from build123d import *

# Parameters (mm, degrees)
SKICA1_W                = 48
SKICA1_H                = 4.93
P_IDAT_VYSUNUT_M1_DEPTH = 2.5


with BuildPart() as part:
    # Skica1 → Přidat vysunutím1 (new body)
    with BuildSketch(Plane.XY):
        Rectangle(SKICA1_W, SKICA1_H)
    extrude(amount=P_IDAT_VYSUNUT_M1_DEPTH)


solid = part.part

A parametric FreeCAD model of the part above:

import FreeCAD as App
import Part
import Sketcher

V = App.Vector

doc = App.newDocument("Part")
body = doc.addObject("PartDesign::Body", "Body")

# Sketch on XY plane
sketch1 = body.newObject("Sketcher::SketchObject", "Sketch")
sketch1.AttachmentSupport = (doc.getObject("XY_Plane"), [""])
sketch1.MapMode = "FlatFace"
sketch1.addGeometry([
    Part.LineSegment(V(-24, 2.5, 0), V(-24, -2.5, 0)),
    Part.LineSegment(V(-24, -2.5, 0), V(24, -2.5, 0)),
    Part.LineSegment(V(24, -2.5, 0), V(24, 2.5, 0)),
    Part.LineSegment(V(24, 2.5, 0), V(-24, 2.5, 0)),
], False)
sketch1.addConstraint([
    Sketcher.Constraint("Coincident", 0, 2, 1, 1),
    Sketcher.Constraint("Coincident", 1, 2, 2, 1),
    Sketcher.Constraint("Coincident", 2, 2, 3, 1),
    Sketcher.Constraint("Coincident", 3, 2, 0, 1),
    Sketcher.Constraint("Vertical", 0),
    Sketcher.Constraint("Horizontal", 1),
    Sketcher.Constraint("Vertical", 2),
    Sketcher.Constraint("Horizontal", 3),
    Sketcher.Constraint("Symmetric", 0, 2, 2, 2, -1, 1),
    Sketcher.Constraint("DistanceX", 1, 1, 1, 2, 48.0),
    Sketcher.Constraint("DistanceY", 0, 2, 0, 1, 4.93),
])
pad1 = body.newObject("PartDesign::Pad", "Pad")
pad1.Profile = sketch1
pad1.Length = 2.5

doc.recompute()
